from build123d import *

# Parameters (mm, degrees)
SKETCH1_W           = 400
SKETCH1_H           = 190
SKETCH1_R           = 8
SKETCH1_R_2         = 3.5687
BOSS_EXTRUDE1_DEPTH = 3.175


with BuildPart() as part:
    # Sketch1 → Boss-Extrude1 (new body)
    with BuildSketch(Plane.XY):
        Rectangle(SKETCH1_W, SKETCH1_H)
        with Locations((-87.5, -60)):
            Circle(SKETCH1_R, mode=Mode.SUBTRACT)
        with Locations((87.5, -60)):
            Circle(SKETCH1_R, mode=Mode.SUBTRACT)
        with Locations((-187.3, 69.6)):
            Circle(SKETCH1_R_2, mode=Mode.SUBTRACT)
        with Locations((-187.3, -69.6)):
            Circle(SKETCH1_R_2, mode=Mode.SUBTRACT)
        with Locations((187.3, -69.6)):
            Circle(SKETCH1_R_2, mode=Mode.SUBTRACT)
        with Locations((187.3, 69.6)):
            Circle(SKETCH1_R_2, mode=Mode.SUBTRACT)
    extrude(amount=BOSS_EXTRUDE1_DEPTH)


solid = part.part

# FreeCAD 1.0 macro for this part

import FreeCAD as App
import Part
import Sketcher
from FreeCAD import Vector

doc = App.newDocument("Part")
body = doc.addObject("PartDesign::Body", "Body")

# Sketch on XY plane
sketch1 = body.newObject("Sketcher::SketchObject", "Sketch")
sketch1.AttachmentSupport = (doc.getObject("XY_Plane"), [""])
sketch1.MapMode = "FlatFace"
sketch1.addGeometry(Part.LineSegment(Vector(-200, 95, 0), Vector(-200, -95, 0)), False)
sketch1.addGeometry(Part.LineSegment(Vector(-200, -95, 0), Vector(200, -95, 0)), False)
sketch1.addGeometry(Part.LineSegment(Vector(200, -95, 0), Vector(200, 95, 0)), False)
sketch1.addGeometry(Part.LineSegment(Vector(200, 95, 0), Vector(-200, 95, 0)), False)
sketch1.addGeometry(Part.Circle(Vector(-187.3, -69.6, 0), Vector(0, 0, 1), 3.6), False)
sketch1.addGeometry(Part.Circle(Vector(-87.5, -60, 0), Vector(0, 0, 1), 8), False)
sketch1.addGeometry(Part.Circle(Vector(87.5, -60, 0), Vector(0, 0, 1), 8), False)
sketch1.addGeometry(Part.Circle(Vector(187.3, -69.6, 0), Vector(0, 0, 1), 3.6), False)
sketch1.addGeometry(Part.Circle(Vector(-187.3, 69.6, 0), Vector(0, 0, 1), 3.6), False)
sketch1.addGeometry(Part.Circle(Vector(187.3, 69.6, 0), Vector(0, 0, 1), 3.6), False)
sketch1.addConstraint(Sketcher.Constraint("Coincident", 0, 2, 1, 1))
sketch1.addConstraint(Sketcher.Constraint("Coincident", 1, 2, 2, 1))
sketch1.addConstraint(Sketcher.Constraint("Coincident", 2, 2, 3, 1))
sketch1.addConstraint(Sketcher.Constraint("Coincident", 3, 2, 0, 1))
sketch1.addConstraint(Sketcher.Constraint("Vertical", 0))
sketch1.addConstraint(Sketcher.Constraint("Horizontal", 1))
sketch1.addConstraint(Sketcher.Constraint("Vertical", 2))
sketch1.addConstraint(Sketcher.Constraint("Horizontal", 3))
sketch1.addConstraint(Sketcher.Constraint("Equal", 5, 6))
sketch1.addConstraint(Sketcher.Constraint("Equal", 4, 7))
sketch1.addConstraint(Sketcher.Constraint("Equal", 7, 8))
sketch1.addConstraint(Sketcher.Constraint("Equal", 8, 9))
sketch1.addConstraint(Sketcher.Constraint("Symmetric", 7, 3, 8, 3, -1, 1))
sketch1.addConstraint(Sketcher.Constraint("Symmetric", 4, 3, 9, 3, -1, 1))
sketch1.addConstraint(Sketcher.Constraint("Symmetric", 0, 2, 2, 2, -1, 1))
sketch1.addConstraint(Sketcher.Constraint("Symmetric", 5, 3, 6, 3, -2))
sketch1.addConstraint(Sketcher.Constraint("Symmetric", 4, 3, 7, 3, -2))
sketch1.addConstraint(Sketcher.Constraint("Diameter", 5, 16.0))
sketch1.addConstraint(Sketcher.Constraint("DistanceX", 1, 1, 1, 2, 400.0))
sketch1.addConstraint(Sketcher.Constraint("DistanceY", 0, 2, 0, 1, 190.0))
sketch1.addConstraint(Sketcher.Constraint("DistanceY", 5, 3, -1, 1, 60.0))
sketch1.addConstraint(Sketcher.Constraint("DistanceX", 5, 3, 6, 3, 175.0))
sketch1.addConstraint(Sketcher.Constraint("Diameter", 4, 7.1374))
sketch1.addConstraint(Sketcher.Constraint("DistanceX", 4, 3, -1, 1, 187.3))
sketch1.addConstraint(Sketcher.Constraint("DistanceY", 4, 3, -1, 1, 69.6))
pad1 = body.newObject("PartDesign::Pad", "Pad")
pad1.Profile = sketch1
pad1.Length = 3.175

doc.recompute()
